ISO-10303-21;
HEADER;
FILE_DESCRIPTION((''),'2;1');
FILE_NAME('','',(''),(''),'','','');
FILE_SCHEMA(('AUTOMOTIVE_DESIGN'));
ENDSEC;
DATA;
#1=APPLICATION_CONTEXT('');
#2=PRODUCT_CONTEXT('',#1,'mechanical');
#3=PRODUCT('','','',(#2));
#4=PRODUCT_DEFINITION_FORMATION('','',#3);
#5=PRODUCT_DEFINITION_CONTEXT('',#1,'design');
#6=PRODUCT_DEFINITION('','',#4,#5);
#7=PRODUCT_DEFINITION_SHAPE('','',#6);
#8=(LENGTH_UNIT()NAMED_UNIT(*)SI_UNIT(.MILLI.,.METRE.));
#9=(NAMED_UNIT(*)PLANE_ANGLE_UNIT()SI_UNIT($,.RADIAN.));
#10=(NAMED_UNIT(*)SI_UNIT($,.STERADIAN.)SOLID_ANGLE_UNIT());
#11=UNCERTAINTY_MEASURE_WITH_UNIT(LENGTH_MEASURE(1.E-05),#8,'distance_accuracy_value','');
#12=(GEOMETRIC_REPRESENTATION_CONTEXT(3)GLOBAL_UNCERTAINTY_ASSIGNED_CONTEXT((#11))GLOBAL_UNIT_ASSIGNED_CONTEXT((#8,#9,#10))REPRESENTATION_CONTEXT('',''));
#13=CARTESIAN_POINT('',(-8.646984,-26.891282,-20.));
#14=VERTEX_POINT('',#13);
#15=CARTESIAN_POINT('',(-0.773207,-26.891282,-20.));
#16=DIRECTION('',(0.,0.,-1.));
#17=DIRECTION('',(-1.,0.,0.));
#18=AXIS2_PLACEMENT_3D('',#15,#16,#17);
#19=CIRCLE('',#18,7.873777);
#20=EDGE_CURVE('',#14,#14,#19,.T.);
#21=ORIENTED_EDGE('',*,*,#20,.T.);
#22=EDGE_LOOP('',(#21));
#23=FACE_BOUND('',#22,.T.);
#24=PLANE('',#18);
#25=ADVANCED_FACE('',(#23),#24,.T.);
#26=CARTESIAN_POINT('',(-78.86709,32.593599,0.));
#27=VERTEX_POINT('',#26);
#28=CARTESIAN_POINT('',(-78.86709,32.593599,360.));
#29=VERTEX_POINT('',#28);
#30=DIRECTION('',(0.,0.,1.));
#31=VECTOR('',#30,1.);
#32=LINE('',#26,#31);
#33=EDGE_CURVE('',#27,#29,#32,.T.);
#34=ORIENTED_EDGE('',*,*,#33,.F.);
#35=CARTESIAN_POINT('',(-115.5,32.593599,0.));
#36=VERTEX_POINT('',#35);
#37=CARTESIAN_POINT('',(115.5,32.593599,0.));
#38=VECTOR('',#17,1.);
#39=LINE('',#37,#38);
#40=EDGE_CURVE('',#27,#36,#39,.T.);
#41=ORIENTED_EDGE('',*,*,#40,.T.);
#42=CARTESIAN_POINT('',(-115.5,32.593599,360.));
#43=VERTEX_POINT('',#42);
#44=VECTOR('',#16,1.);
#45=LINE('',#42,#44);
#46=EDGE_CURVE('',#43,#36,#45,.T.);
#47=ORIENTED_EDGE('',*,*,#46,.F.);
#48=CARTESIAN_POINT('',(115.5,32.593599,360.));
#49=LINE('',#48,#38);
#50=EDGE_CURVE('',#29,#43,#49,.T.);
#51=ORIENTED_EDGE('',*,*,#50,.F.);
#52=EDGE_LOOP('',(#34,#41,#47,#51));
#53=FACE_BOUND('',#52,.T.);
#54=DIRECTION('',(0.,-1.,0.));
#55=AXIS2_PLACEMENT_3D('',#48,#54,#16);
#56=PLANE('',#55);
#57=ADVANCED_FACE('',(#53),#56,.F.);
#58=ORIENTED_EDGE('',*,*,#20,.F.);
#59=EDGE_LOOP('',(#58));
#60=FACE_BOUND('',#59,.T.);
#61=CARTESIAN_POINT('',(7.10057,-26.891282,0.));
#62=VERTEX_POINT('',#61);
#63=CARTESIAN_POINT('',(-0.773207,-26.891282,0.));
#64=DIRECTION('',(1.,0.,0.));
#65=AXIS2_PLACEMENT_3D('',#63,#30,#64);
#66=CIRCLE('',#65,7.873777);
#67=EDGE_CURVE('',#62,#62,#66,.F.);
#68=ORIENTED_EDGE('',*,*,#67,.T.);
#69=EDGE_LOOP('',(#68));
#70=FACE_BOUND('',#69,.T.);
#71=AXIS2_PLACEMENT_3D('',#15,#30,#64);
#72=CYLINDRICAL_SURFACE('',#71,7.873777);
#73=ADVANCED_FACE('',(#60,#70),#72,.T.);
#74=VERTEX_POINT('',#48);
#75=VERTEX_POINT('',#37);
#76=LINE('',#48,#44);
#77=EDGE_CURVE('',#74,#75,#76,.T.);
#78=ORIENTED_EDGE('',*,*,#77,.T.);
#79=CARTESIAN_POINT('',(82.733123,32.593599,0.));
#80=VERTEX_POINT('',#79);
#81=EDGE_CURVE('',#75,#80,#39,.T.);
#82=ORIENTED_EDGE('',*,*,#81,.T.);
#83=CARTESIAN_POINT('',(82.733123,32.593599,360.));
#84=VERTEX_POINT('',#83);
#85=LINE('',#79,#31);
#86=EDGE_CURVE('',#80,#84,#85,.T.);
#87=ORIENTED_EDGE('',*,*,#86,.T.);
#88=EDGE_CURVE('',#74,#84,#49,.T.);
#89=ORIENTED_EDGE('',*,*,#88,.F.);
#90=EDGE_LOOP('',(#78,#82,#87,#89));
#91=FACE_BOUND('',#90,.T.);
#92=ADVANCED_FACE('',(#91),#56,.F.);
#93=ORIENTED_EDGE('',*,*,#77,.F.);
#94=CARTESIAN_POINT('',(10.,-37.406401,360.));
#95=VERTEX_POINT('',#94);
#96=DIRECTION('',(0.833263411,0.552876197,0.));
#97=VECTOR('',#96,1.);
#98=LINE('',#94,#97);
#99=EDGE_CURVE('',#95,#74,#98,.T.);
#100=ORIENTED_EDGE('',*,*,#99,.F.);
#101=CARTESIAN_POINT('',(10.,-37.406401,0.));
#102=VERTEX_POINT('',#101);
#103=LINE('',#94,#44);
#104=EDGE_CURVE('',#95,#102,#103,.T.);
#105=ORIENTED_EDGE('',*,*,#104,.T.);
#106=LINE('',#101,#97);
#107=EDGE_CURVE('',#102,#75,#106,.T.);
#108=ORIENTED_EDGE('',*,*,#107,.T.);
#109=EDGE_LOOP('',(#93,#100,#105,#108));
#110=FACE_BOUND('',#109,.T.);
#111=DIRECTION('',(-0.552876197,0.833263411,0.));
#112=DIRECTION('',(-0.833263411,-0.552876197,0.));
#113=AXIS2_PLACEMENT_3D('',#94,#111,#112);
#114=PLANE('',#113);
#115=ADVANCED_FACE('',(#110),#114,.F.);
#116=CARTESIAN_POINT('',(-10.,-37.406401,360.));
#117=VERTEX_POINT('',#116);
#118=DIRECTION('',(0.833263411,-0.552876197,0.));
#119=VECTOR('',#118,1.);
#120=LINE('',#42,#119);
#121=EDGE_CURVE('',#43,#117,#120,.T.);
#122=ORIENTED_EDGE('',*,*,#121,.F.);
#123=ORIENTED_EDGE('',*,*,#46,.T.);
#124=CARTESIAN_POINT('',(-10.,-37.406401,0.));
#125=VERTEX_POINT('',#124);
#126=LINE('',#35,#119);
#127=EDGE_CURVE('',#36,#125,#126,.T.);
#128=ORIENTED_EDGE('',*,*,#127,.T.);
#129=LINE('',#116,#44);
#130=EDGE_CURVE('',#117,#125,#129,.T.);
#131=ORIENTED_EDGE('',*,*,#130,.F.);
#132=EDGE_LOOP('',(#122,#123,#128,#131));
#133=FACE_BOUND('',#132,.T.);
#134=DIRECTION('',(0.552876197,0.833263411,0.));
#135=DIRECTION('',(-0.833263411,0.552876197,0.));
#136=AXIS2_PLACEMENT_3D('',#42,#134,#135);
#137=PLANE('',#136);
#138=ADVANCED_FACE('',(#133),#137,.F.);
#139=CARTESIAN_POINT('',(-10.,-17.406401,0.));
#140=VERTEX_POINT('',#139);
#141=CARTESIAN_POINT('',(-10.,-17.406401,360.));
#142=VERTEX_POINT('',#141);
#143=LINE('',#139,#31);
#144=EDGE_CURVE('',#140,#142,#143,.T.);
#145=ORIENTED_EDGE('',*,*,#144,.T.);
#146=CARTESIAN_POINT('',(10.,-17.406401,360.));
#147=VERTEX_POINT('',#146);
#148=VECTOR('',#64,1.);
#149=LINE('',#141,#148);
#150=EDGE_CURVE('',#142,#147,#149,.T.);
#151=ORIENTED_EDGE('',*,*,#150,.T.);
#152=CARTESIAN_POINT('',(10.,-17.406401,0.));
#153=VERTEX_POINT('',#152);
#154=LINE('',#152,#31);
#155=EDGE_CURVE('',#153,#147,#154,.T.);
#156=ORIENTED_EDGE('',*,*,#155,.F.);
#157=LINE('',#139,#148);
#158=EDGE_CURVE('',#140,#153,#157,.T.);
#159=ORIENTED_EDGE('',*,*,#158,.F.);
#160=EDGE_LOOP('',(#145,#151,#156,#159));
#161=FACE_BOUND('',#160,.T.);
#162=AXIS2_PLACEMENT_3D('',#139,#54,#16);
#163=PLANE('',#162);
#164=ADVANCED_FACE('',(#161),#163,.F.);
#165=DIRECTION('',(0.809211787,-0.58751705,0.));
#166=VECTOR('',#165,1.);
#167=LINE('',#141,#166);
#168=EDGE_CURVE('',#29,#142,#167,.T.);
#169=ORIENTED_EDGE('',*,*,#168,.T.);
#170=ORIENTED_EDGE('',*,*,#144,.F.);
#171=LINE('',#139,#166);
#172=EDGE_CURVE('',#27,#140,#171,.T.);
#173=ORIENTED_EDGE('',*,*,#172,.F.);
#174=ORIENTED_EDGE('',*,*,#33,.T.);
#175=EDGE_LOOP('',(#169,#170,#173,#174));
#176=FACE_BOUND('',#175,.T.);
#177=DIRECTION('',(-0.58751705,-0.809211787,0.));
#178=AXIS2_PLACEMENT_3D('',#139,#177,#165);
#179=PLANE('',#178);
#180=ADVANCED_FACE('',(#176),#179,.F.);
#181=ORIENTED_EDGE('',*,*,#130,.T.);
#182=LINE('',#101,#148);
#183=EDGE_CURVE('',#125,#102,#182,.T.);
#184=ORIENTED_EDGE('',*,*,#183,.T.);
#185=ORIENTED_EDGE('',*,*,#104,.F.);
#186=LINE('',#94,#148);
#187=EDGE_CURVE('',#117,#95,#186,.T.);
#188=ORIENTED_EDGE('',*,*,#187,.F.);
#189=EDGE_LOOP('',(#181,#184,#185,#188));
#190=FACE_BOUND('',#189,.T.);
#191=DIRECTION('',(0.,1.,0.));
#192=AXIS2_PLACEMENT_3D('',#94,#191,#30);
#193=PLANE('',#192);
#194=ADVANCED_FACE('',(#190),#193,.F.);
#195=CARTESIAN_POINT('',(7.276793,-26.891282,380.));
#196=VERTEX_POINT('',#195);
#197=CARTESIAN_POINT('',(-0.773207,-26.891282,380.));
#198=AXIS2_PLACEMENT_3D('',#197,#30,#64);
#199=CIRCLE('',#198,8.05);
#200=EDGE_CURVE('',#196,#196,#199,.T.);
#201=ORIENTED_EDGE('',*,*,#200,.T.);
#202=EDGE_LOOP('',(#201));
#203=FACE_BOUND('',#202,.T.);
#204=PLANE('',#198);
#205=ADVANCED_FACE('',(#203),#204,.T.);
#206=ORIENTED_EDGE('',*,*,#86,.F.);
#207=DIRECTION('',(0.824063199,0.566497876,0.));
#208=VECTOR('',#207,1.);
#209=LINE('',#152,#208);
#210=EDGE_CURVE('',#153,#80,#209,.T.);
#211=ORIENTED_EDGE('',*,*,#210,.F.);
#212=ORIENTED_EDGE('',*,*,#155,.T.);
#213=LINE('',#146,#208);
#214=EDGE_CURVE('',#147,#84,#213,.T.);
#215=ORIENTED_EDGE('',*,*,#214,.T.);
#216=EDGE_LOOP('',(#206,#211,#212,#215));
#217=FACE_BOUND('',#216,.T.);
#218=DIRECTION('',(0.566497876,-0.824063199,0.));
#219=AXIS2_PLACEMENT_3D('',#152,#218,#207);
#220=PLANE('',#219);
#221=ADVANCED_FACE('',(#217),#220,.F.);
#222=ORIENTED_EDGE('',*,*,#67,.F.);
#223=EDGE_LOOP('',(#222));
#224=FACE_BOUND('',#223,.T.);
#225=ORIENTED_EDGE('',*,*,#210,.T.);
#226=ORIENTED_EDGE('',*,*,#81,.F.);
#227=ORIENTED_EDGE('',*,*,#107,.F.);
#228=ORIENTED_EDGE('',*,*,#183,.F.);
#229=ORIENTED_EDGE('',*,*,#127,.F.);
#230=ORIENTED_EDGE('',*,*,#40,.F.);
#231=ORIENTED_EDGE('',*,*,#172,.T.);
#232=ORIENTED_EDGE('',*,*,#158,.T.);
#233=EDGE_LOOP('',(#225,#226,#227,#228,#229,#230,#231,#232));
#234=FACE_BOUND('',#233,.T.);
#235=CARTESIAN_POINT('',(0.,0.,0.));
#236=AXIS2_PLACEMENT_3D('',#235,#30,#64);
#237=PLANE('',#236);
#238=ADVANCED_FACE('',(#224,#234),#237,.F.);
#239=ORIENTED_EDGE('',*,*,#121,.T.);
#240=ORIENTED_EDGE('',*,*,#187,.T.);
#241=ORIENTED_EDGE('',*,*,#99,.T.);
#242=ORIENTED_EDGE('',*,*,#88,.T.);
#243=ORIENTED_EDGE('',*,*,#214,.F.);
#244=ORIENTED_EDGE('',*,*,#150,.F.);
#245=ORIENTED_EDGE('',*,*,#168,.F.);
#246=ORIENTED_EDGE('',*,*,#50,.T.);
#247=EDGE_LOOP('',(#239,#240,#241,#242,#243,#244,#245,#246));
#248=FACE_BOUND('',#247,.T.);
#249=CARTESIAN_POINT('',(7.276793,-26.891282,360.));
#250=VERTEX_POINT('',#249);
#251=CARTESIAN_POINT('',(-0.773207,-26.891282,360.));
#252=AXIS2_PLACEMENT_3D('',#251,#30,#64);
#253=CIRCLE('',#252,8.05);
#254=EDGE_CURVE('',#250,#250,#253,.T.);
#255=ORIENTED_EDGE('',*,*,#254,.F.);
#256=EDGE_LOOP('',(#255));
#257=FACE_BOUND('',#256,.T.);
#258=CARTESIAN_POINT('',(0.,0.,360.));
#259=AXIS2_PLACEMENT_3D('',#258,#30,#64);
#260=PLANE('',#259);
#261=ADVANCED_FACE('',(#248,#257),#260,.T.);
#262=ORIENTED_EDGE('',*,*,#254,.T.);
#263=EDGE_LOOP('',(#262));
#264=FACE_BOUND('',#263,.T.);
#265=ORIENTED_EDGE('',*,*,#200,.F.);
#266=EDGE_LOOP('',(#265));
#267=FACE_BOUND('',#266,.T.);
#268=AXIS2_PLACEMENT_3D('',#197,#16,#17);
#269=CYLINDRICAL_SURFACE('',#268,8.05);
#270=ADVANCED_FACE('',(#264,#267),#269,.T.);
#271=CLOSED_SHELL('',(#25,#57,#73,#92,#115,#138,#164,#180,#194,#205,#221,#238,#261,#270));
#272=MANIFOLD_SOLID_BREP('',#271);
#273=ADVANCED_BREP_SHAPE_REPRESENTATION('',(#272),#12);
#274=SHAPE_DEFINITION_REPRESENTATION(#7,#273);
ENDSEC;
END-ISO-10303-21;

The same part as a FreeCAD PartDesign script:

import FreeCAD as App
import Part
import Sketcher
from FreeCAD import Vector
Q = App.Units.Quantity


def add_polygon(sketch, points):
    """Adds a closed chain of lines whose ends are joined by coincident constraints."""
    first, n = sketch.GeometryCount, len(points)
    for a, b in zip(points, points[1:] + points[:1]):
        sketch.addGeometry(Part.LineSegment(App.Vector(*a, 0), App.Vector(*b, 0)), False)
    for i in range(n):
        sketch.addConstraint(Sketcher.Constraint("Coincident", first + i, 2, first + (i + 1) % n, 1))

doc = App.newDocument("Part")
params = doc.addObject("Spreadsheet::Sheet", "Params")
for row, (alias, value) in enumerate([
    ("sketch1_width", "20 mm"),
    ("sketch1_width2", "231 mm"),
    ("pad1_length", "360 mm"),
    ("sketch2_width", "20 mm"),
    ("pocket1_length", "360 mm"),
    ("sketch3_diameter", "16.1 mm"),
    ("pad2_length", "20 mm"),
    ("pad3_length", "20 mm"),
], start=1):
    params.set(f"A{row}", alias)
    params.set(f"B{row}", "=" + value)
    params.setAlias(f"B{row}", alias)

body = doc.addObject("PartDesign::Body", "Body")

sketch1 = body.newObject("Sketcher::SketchObject", "Sketch")
sketch1.AttachmentSupport = (doc.getObject("XY_Plane"), [""])
sketch1.MapMode = "FlatFace"
add_polygon(sketch1, [(-115.5, 32.593599), (-10, -37.406401), (10, -37.406401), (115.5, 32.593599)])
sketch1.addConstraint(Sketcher.Constraint("Horizontal", 1))
sketch1.addConstraint(Sketcher.Constraint("Horizontal", 3))
sketch1.addConstraint(Sketcher.Constraint("Equal", 0, 2))
sketch1.addConstraint(Sketcher.Constraint("DistanceX", 1, 1, 1, 2, Q("20 mm")))
sketch1.addConstraint(Sketcher.Constraint("DistanceX", 3, 2, 3, 1, Q("231 mm")))
sketch1.addConstraint(Sketcher.Constraint("DistanceX", 0, 2, -1, 1, Q("10 mm")))
sketch1.addConstraint(Sketcher.Constraint("DistanceY", 1, 2, 2, 2, Q("70 mm")))
sketch1.addConstraint(Sketcher.Constraint("DistanceY", 0, 2, -1, 1, Q("37.406401 mm")))
sketch1.setExpression("Constraints[7]", "Params.sketch1_width")
sketch1.setExpression("Constraints[8]", "Params.sketch1_width2")
pad1 = body.newObject("PartDesign::Pad", "Pad")
pad1.Profile = sketch1
pad1.setExpression("Length", "Params.pad1_length")

sketch2 = body.newObject("Sketcher::SketchObject", "Sketch001")
sketch2.AttachmentSupport = (doc.getObject("XY_Plane"), [""])
sketch2.MapMode = "FlatFace"
sketch2.AttachmentOffset = App.Placement(Vector(0, 0, 360), App.Rotation())
add_polygon(sketch2, [(82.733123, 32.593599), (-78.86709, 32.593599), (-10, -17.406401), (10, -17.406401)])
sketch2.addConstraint(Sketcher.Constraint("Horizontal", 0))
sketch2.addConstraint(Sketcher.Constraint("Horizontal", 2))
sketch2.addConstraint(Sketcher.Constraint("DistanceX", 2, 1, 2, 2, Q("20 mm")))
sketch2.addConstraint(Sketcher.Constraint("DistanceX", 1, 2, -1, 1, Q("10 mm")))
sketch2.addConstraint(Sketcher.Constraint("DistanceY", 1, 2, 0, 2, Q("50 mm")))
sketch2.addConstraint(Sketcher.Constraint("DistanceY", -1, 1, 0, 2, Q("32.593599 mm")))
sketch2.addConstraint(Sketcher.Constraint("DistanceX", 0, 2, 0, 1, Q("161.600213 mm")))
sketch2.addConstraint(Sketcher.Constraint("DistanceX", 0, 2, -1, 1, Q("78.86709 mm")))
sketch2.setExpression("Constraints[6]", "Params.sketch2_width")
pocket1 = body.newObject("PartDesign::Pocket", "Pocket")
pocket1.Profile = sketch2
pocket1.setExpression("Length", "Params.pocket1_length")

sketch3 = body.newObject("Sketcher::SketchObject", "Sketch002")
sketch3.AttachmentSupport = (doc.getObject("XY_Plane"), [""])
sketch3.MapMode = "FlatFace"
sketch3.AttachmentOffset = App.Placement(Vector(0, 0, 360), App.Rotation())
sketch3.addGeometry(Part.Circle(Vector(-0.773207, -26.891282, 0), Vector(0, 0, 1), 8.05), False)
sketch3.addConstraint(Sketcher.Constraint("Diameter", 0, Q("16.1 mm")))
sketch3.addConstraint(Sketcher.Constraint("DistanceY", 0, 3, -1, 1, Q("26.891282 mm")))
sketch3.addConstraint(Sketcher.Constraint("DistanceX", 0, 3, -1, 1, Q("0.773207 mm")))
sketch3.setExpression("Constraints[0]", "Params.sketch3_diameter")
pad2 = body.newObject("PartDesign::Pad", "Pad001")
pad2.Profile = sketch3
pad2.setExpression("Length", "Params.pad2_length")

sketch4 = body.newObject("Sketcher::SketchObject", "Sketch003")
sketch4.AttachmentSupport = (doc.getObject("XY_Plane"), [""])
sketch4.MapMode = "FlatFace"
sketch4.addGeometry(Part.Circle(Vector(-0.773207, -26.891282, 0), Vector(0, 0, 1), 7.873777), False)
sketch4.addConstraint(Sketcher.Constraint("Diameter", 0, Q("15.747554 mm")))
sketch4.addConstraint(Sketcher.Constraint("DistanceY", 0, 3, -1, 1, Q("26.891282 mm")))
sketch4.addConstraint(Sketcher.Constraint("DistanceX", 0, 3, -1, 1, Q("0.773207 mm")))
pad3 = body.newObject("PartDesign::Pad", "Pad002")
pad3.Profile = sketch4
pad3.setExpression("Length", "Params.pad3_length")
pad3.Reversed = True

doc.recompute()
